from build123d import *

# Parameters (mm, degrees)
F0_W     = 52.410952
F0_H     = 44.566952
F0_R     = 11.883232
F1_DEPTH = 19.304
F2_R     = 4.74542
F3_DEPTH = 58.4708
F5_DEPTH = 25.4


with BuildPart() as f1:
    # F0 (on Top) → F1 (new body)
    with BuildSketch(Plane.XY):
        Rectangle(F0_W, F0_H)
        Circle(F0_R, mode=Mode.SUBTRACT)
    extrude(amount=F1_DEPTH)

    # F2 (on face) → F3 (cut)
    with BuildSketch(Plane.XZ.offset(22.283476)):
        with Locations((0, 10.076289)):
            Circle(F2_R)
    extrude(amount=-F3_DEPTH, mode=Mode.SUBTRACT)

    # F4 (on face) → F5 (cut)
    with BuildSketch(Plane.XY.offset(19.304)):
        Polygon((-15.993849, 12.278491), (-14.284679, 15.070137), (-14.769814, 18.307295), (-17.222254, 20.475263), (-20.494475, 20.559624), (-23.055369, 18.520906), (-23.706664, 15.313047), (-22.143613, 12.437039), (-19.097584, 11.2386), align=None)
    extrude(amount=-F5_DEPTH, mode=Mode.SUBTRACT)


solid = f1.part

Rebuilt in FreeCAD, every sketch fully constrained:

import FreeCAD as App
import Part
import Sketcher
Q = App.Units.Quantity


def add_polygon(sketch, points):
    """Adds a closed chain of lines whose ends are joined by coincident constraints."""
    first, n = sketch.GeometryCount, len(points)
    for a, b in zip(points, points[1:] + points[:1]):
        sketch.addGeometry(Part.LineSegment(App.Vector(*a, 0), App.Vector(*b, 0)), False)
    for i in range(n):
        sketch.addConstraint(Sketcher.Constraint("Coincident", first + i, 2, first + (i + 1) % n, 1))

doc = App.newDocument("Part")
body = doc.addObject("PartDesign::Body", "Body")

# Sketch on XY plane
sketch1 = body.newObject("Sketcher::SketchObject", "Sketch")
sketch1.AttachmentSupport = (doc.getObject("XY_Plane"), [""])
sketch1.MapMode = "FlatFace"
add_polygon(sketch1, [(-26, 22), (-26, -22), (26, -22), (26, 22)])  # lines 0-3
sketch1.addGeometry(Part.Circle(App.Vector(0, 0, 0), App.Vector(0, 0, 1), 12), False)  # 4
sketch1.addConstraint(Sketcher.Constraint("Vertical", 0))
sketch1.addConstraint(Sketcher.Constraint("Horizontal", 1))
sketch1.addConstraint(Sketcher.Constraint("Vertical", 2))
sketch1.addConstraint(Sketcher.Constraint("Horizontal", 3))
sketch1.addConstraint(Sketcher.Constraint("Coincident", 4, 3, -1, 1))
sketch1.addConstraint(Sketcher.Constraint("Symmetric", 0, 2, 2, 2, -1, 1))
sketch1.addConstraint(Sketcher.Constraint("Diameter", 4, Q("23.766464 mm")))
sketch1.addConstraint(Sketcher.Constraint("DistanceX", 1, 1, 1, 2, Q("52.410952 mm")))
sketch1.addConstraint(Sketcher.Constraint("DistanceY", 0, 2, 0, 1, Q("44.566952 mm")))
pad1 = body.newObject("PartDesign::Pad", "Pad")
pad1.Profile = sketch1
pad1.Length = Q("0.76 in")

# Sketch on XZ plane
sketch2 = body.newObject("Sketcher::SketchObject", "Sketch001")
sketch2.AttachmentSupport = (doc.getObject("XZ_Plane"), [""])
sketch2.MapMode = "FlatFace"
sketch2.AttachmentOffset = App.Placement(App.Vector(0, 0, 22.283476), App.Rotation())
sketch2.addGeometry(Part.Circle(App.Vector(0, 10.1, 0), App.Vector(0, 0, 1), 4.7), False)
sketch2.addConstraint(Sketcher.Constraint("PointOnObject", 0, 3, -2))
sketch2.addConstraint(Sketcher.Constraint("Diameter", 0, Q("9.49084 mm")))
sketch2.addConstraint(Sketcher.Constraint("DistanceY", -1, 1, 0, 3, Q("10.076289 mm")))
pocket1 = body.newObject("PartDesign::Pocket", "Pocket")
pocket1.Profile = sketch2
pocket1.Length = Q("2.302 in")

# Sketch on XY plane
sketch3 = body.newObject("Sketcher::SketchObject", "Sketch002")
sketch3.AttachmentSupport = (doc.getObject("XY_Plane"), [""])
sketch3.MapMode = "FlatFace"
sketch3.AttachmentOffset = App.Placement(App.Vector(0, 0, 0.76 * 25.4), App.Rotation())
add_polygon(sketch3, [(-15.993849, 12.278491), (-14.284679, 15.070137), (-14.769814, 18.307295), (-17.222254, 20.475263), (-20.494475, 20.559624), (-23.055369, 18.520906), (-23.706664, 15.313047), (-22.143613, 12.437039), (-19.097584, 11.2386)])  # lines 0-8
sketch3.addConstraint(Sketcher.Constraint("DistanceX", 1, 2, 0, 2, Q("0.0190998 in")))
sketch3.addConstraint(Sketcher.Constraint("DistanceY", -1, 1, 7, 2, Q("11.2386 mm")))
sketch3.addConstraint(Sketcher.Constraint("DistanceY", 6, 2, 0, 2, Q("2.633098 mm")))
sketch3.addConstraint(Sketcher.Constraint("DistanceX", 6, 2, 1, 2, Q("7.373799 mm")))
sketch3.addConstraint(Sketcher.Constraint("Distance", 0, Q("3.273309 mm")))
sketch3.addConstraint(Sketcher.Constraint("Distance", 1, Q("3.273308 mm")))
sketch3.addConstraint(Sketcher.Constraint("Distance", 2, Q("3.273308 mm")))
sketch3.addConstraint(Sketcher.Constraint("Distance", 3, Q("3.273308 mm")))
sketch3.addConstraint(Sketcher.Constraint("Distance", 4, Q("3.273309 mm")))
sketch3.addConstraint(Sketcher.Constraint("Distance", 6, Q("3.273309 mm")))
sketch3.addConstraint(Sketcher.Constraint("Distance", 7, Q("3.273309 mm")))
sketch3.addConstraint(Sketcher.Constraint("DistanceX", 0, 2, -1, 1, Q("14.284679 mm")))
sketch3.addConstraint(Sketcher.Constraint("DistanceX", 4, 2, -1, 1, Q("23.055369 mm")))
sketch3.addConstraint(Sketcher.Constraint("DistanceY", -1, 1, 6, 2, Q("12.437039 mm")))
sketch3.addConstraint(Sketcher.Constraint("DistanceX", 8, 2, -1, 1, Q("15.993849 mm")))
sketch3.addConstraint(Sketcher.Constraint("DistanceX", 2, 2, 1, 2, Q("2.45244 mm")))
sketch3.addConstraint(Sketcher.Constraint("DistanceX", 3, 2, 2, 2, Q("3.272221 mm")))
sketch3.addConstraint(Sketcher.Constraint("DistanceY", 5, 2, 4, 2, Q("3.207859 mm")))
pocket2 = body.newObject("PartDesign::Pocket", "Pocket001")
pocket2.Profile = sketch3
pocket2.Length = Q("1 in")

doc.recompute()
